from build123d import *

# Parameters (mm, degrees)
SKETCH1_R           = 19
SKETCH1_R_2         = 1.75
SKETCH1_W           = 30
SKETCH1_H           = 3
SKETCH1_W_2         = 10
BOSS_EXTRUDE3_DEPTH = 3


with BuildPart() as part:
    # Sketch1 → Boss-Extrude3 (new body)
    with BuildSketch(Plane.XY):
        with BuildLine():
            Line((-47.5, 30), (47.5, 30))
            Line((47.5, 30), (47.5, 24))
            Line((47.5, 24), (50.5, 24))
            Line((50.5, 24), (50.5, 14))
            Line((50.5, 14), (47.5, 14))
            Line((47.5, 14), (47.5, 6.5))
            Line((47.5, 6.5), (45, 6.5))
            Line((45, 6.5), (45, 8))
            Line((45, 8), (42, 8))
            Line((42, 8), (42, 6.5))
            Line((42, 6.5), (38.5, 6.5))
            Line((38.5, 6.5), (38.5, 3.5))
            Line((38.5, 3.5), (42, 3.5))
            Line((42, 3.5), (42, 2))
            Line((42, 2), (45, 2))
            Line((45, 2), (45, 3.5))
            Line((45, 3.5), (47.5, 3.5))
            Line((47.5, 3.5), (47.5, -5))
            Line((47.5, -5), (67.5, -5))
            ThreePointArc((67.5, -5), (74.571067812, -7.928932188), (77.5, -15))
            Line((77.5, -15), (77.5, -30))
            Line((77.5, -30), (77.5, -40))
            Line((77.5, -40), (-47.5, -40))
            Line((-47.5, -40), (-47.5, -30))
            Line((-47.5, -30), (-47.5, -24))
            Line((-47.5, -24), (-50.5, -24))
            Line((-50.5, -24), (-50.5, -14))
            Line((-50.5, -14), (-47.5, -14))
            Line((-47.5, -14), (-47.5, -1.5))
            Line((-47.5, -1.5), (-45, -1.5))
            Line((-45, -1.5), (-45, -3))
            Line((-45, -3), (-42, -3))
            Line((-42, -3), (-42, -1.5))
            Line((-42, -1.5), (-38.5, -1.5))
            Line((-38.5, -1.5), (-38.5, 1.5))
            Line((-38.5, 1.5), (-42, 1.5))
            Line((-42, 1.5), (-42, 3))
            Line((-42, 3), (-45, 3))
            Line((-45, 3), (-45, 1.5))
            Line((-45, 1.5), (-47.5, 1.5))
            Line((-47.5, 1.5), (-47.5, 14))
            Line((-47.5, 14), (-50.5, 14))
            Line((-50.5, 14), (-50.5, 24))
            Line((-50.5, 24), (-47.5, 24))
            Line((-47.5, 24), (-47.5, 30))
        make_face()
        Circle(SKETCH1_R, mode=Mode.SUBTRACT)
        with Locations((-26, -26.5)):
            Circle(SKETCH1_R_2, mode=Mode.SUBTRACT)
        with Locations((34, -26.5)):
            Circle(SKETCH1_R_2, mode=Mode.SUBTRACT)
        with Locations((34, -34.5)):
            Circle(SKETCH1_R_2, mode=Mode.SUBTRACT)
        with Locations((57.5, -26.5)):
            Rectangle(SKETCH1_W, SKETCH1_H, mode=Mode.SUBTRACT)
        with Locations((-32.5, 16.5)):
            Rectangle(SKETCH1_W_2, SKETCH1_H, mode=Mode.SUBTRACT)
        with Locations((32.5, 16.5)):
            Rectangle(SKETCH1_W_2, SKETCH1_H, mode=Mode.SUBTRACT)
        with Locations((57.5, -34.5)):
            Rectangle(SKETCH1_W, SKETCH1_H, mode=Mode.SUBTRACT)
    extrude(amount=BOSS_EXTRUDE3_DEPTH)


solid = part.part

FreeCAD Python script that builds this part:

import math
import FreeCAD as App
import Part
import Sketcher


def add_polygon(sketch, points):
    """Adds a closed chain of lines whose ends are joined by coincident constraints."""
    first, n = sketch.GeometryCount, len(points)
    for a, b in zip(points, points[1:] + points[:1]):
        sketch.addGeometry(Part.LineSegment(App.Vector(*a, 0), App.Vector(*b, 0)), False)
    for i in range(n):
        sketch.addConstraint(Sketcher.Constraint("Coincident", first + i, 2, first + (i + 1) % n, 1))

doc = App.newDocument("Part")
body = doc.addObject("PartDesign::Body", "Body")

sketch1 = doc.addObject("Sketcher::SketchObject", "Sketch")
body.addObject(sketch1)
sketch1.AttachmentSupport = (doc.XY_Plane, [""])
sketch1.MapMode = "FlatFace"
sketch1.addGeometry(Part.LineSegment(App.Vector(47.5, 30, 0), App.Vector(-47.5, 30, 0)), False)
sketch1.addGeometry(Part.LineSegment(App.Vector(-47.5, 30, 0), App.Vector(-47.5, 24, 0)), False)
sketch1.addGeometry(Part.LineSegment(App.Vector(-47.5, 24, 0), App.Vector(-50.5, 24, 0)), False)
sketch1.addGeometry(Part.LineSegment(App.Vector(-50.5, 24, 0), App.Vector(-50.5, 14, 0)), False)
sketch1.addGeometry(Part.LineSegment(App.Vector(-50.5, 14, 0), App.Vector(-47.5, 14, 0)), False)
sketch1.addGeometry(Part.LineSegment(App.Vector(-47.5, 14, 0), App.Vector(-47.5, 1.5, 0)), False)
sketch1.addGeometry(Part.LineSegment(App.Vector(-47.5, 1.5, 0), App.Vector(-45, 1.5, 0)), False)
sketch1.addGeometry(Part.LineSegment(App.Vector(-45, 1.5, 0), App.Vector(-45, 3, 0)), False)
sketch1.addGeometry(Part.LineSegment(App.Vector(-45, 3, 0), App.Vector(-42, 3, 0)), False)
sketch1.addGeometry(Part.LineSegment(App.Vector(-42, 3, 0), App.Vector(-42, 1.5, 0)), False)
sketch1.addGeometry(Part.LineSegment(App.Vector(-42, 1.5, 0), App.Vector(-38.5, 1.5, 0)), False)
sketch1.addGeometry(Part.LineSegment(App.Vector(-38.5, 1.5, 0), App.Vector(-38.5, -1.5, 0)), False)
sketch1.addGeometry(Part.LineSegment(App.Vector(-38.5, -1.5, 0), App.Vector(-42, -1.5, 0)), False)
sketch1.addGeometry(Part.LineSegment(App.Vector(-42, -1.5, 0), App.Vector(-42, -3, 0)), False)
sketch1.addGeometry(Part.LineSegment(App.Vector(-42, -3, 0), App.Vector(-45, -3, 0)), False)
sketch1.addGeometry(Part.LineSegment(App.Vector(-45, -3, 0), App.Vector(-45, -1.5, 0)), False)
sketch1.addGeometry(Part.LineSegment(App.Vector(-45, -1.5, 0), App.Vector(-47.5, -1.5, 0)), False)
sketch1.addGeometry(Part.LineSegment(App.Vector(-47.5, -1.5, 0), App.Vector(-47.5, -14, 0)), False)
sketch1.addGeometry(Part.LineSegment(App.Vector(-47.5, -14, 0), App.Vector(-50.5, -14, 0)), False)
sketch1.addGeometry(Part.LineSegment(App.Vector(-50.5, -14, 0), App.Vector(-50.5, -24, 0)), False)
sketch1.addGeometry(Part.LineSegment(App.Vector(-50.5, -24, 0), App.Vector(-47.5, -24, 0)), False)
sketch1.addGeometry(Part.LineSegment(App.Vector(-47.5, -24, 0), App.Vector(-47.5, -40, 0)), False)
sketch1.addGeometry(Part.LineSegment(App.Vector(-47.5, -40, 0), App.Vector(77.5, -40, 0)), False)
sketch1.addGeometry(Part.LineSegment(App.Vector(77.5, -40, 0), App.Vector(77.5, -15, 0)), False)
sketch1.addGeometry(Part.ArcOfCircle(Part.Circle(App.Vector(67.5, -15, 0), App.Vector(0, 0, 1), 10), math.radians(0), math.radians(90)), False)
sketch1.addGeometry(Part.LineSegment(App.Vector(67.5, -5, 0), App.Vector(47.5, -5, 0)), False)
sketch1.addGeometry(Part.LineSegment(App.Vector(47.5, -5, 0), App.Vector(47.5, 3.5, 0)), False)
sketch1.addGeometry(Part.LineSegment(App.Vector(47.5, 3.5, 0), App.Vector(45, 3.5, 0)), False)
sketch1.addGeometry(Part.LineSegment(App.Vector(45, 3.5, 0), App.Vector(45, 2, 0)), False)
sketch1.addGeometry(Part.LineSegment(App.Vector(45, 2, 0), App.Vector(42, 2, 0)), False)
sketch1.addGeometry(Part.LineSegment(App.Vector(42, 2, 0), App.Vector(42, 3.5, 0)), False)
sketch1.addGeometry(Part.LineSegment(App.Vector(42, 3.5, 0), App.Vector(38.5, 3.5, 0)), False)
sketch1.addGeometry(Part.LineSegment(App.Vector(38.5, 3.5, 0), App.Vector(38.5, 6.5, 0)), False)
sketch1.addGeometry(Part.LineSegment(App.Vector(38.5, 6.5, 0), App.Vector(42, 6.5, 0)), False)
sketch1.addGeometry(Part.LineSegment(App.Vector(42, 6.5, 0), App.Vector(42, 8, 0)), False)
sketch1.addGeometry(Part.LineSegment(App.Vector(42, 8, 0), App.Vector(45, 8, 0)), False)
sketch1.addGeometry(Part.LineSegment(App.Vector(45, 8, 0), App.Vector(45, 6.5, 0)), False)
sketch1.addGeometry(Part.LineSegment(App.Vector(45, 6.5, 0), App.Vector(47.5, 6.5, 0)), False)
sketch1.addGeometry(Part.LineSegment(App.Vector(47.5, 6.5, 0), App.Vector(47.5, 14, 0)), False)
sketch1.addGeometry(Part.LineSegment(App.Vector(47.5, 14, 0), App.Vector(50.5, 14, 0)), False)
sketch1.addGeometry(Part.LineSegment(App.Vector(50.5, 14, 0), App.Vector(50.5, 24, 0)), False)
sketch1.addGeometry(Part.LineSegment(App.Vector(50.5, 24, 0), App.Vector(47.5, 24, 0)), False)
sketch1.addGeometry(Part.LineSegment(App.Vector(47.5, 24, 0), App.Vector(47.5, 30, 0)), False)
add_polygon(sketch1, [(42.5, -36), (42.5, -33), (72.5, -33), (72.5, -36)])
add_polygon(sketch1, [(42.5, -28), (42.5, -25), (72.5, -25), (72.5, -28)])
sketch1.addGeometry(Part.Circle(App.Vector(34, -34.5, 0), App.Vector(0, 0, 1), 1.8), False)
sketch1.addGeometry(Part.Circle(App.Vector(34, -26.5, 0), App.Vector(0, 0, 1), 1.8), False)
sketch1.addGeometry(Part.Circle(App.Vector(-26, -26.5, 0), App.Vector(0, 0, 1), 1.8), False)
add_polygon(sketch1, [(27.5, 15), (27.5, 18), (37.5, 18), (37.5, 15)])
sketch1.addGeometry(Part.Circle(App.Vector(0, 0, 0), App.Vector(0, 0, 1), 19), False)
add_polygon(sketch1, [(-37.5, 15), (-37.5, 18), (-27.5, 18), (-27.5, 15)])
sketch1.addConstraint(Sketcher.Constraint("Coincident", 0, 2, 1, 1))
sketch1.addConstraint(Sketcher.Constraint("Coincident", 1, 2, 2, 1))
sketch1.addConstraint(Sketcher.Constraint("Coincident", 2, 2, 3, 1))
sketch1.addConstraint(Sketcher.Constraint("Coincident", 3, 2, 4, 1))
sketch1.addConstraint(Sketcher.Constraint("Coincident", 4, 2, 5, 1))
sketch1.addConstraint(Sketcher.Constraint("Coincident", 5, 2, 6, 1))
sketch1.addConstraint(Sketcher.Constraint("Coincident", 6, 2, 7, 1))
sketch1.addConstraint(Sketcher.Constraint("Coincident", 7, 2, 8, 1))
sketch1.addConstraint(Sketcher.Constraint("Coincident", 8, 2, 9, 1))
sketch1.addConstraint(Sketcher.Constraint("Coincident", 9, 2, 10, 1))
sketch1.addConstraint(Sketcher.Constraint("Coincident", 10, 2, 11, 1))
sketch1.addConstraint(Sketcher.Constraint("Coincident", 11, 2, 12, 1))
sketch1.addConstraint(Sketcher.Constraint("Coincident", 12, 2, 13, 1))
sketch1.addConstraint(Sketcher.Constraint("Coincident", 13, 2, 14, 1))
sketch1.addConstraint(Sketcher.Constraint("Coincident", 14, 2, 15, 1))
sketch1.addConstraint(Sketcher.Constraint("Coincident", 15, 2, 16, 1))
sketch1.addConstraint(Sketcher.Constraint("Coincident", 16, 2, 17, 1))
sketch1.addConstraint(Sketcher.Constraint("Coincident", 17, 2, 18, 1))
sketch1.addConstraint(Sketcher.Constraint("Coincident", 18, 2, 19, 1))
sketch1.addConstraint(Sketcher.Constraint("Coincident", 19, 2, 20, 1))
sketch1.addConstraint(Sketcher.Constraint("Coincident", 20, 2, 21, 1))
sketch1.addConstraint(Sketcher.Constraint("Coincident", 21, 2, 22, 1))
sketch1.addConstraint(Sketcher.Constraint("Coincident", 22, 2, 23, 1))
sketch1.addConstraint(Sketcher.Constraint("Tangent", 23, 2, 24, 1))
sketch1.addConstraint(Sketcher.Constraint("Tangent", 24, 2, 25, 1))
sketch1.addConstraint(Sketcher.Constraint("Coincident", 25, 2, 26, 1))
sketch1.addConstraint(Sketcher.Constraint("Coincident", 26, 2, 27, 1))
sketch1.addConstraint(Sketcher.Constraint("Coincident", 27, 2, 28, 1))
sketch1.addConstraint(Sketcher.Constraint("Coincident", 28, 2, 29, 1))
sketch1.addConstraint(Sketcher.Constraint("Coincident", 29, 2, 30, 1))
sketch1.addConstraint(Sketcher.Constraint("Coincident", 30, 2, 31, 1))
sketch1.addConstraint(Sketcher.Constraint("Coincident", 31, 2, 32, 1))
sketch1.addConstraint(Sketcher.Constraint("Coincident", 32, 2, 33, 1))
sketch1.addConstraint(Sketcher.Constraint("Coincident", 33, 2, 34, 1))
sketch1.addConstraint(Sketcher.Constraint("Coincident", 34, 2, 35, 1))
sketch1.addConstraint(Sketcher.Constraint("Coincident", 35, 2, 36, 1))
sketch1.addConstraint(Sketcher.Constraint("Coincident", 36, 2, 37, 1))
sketch1.addConstraint(Sketcher.Constraint("Coincident", 37, 2, 38, 1))
sketch1.addConstraint(Sketcher.Constraint("Coincident", 38, 2, 39, 1))
sketch1.addConstraint(Sketcher.Constraint("Coincident", 39, 2, 40, 1))
sketch1.addConstraint(Sketcher.Constraint("Coincident", 40, 2, 41, 1))
sketch1.addConstraint(Sketcher.Constraint("Coincident", 41, 2, 42, 1))
sketch1.addConstraint(Sketcher.Constraint("Coincident", 42, 2, 0, 1))
sketch1.addConstraint(Sketcher.Constraint("Horizontal", 0))
sketch1.addConstraint(Sketcher.Constraint("Vertical", 1))
sketch1.addConstraint(Sketcher.Constraint("Horizontal", 2))
sketch1.addConstraint(Sketcher.Constraint("Vertical", 3))
sketch1.addConstraint(Sketcher.Constraint("Horizontal", 4))
sketch1.addConstraint(Sketcher.Constraint("Vertical", 5))
sketch1.addConstraint(Sketcher.Constraint("Horizontal", 6))
sketch1.addConstraint(Sketcher.Constraint("Vertical", 7))
sketch1.addConstraint(Sketcher.Constraint("Horizontal", 8))
sketch1.addConstraint(Sketcher.Constraint("Vertical", 9))
sketch1.addConstraint(Sketcher.Constraint("Horizontal", 10))
sketch1.addConstraint(Sketcher.Constraint("Vertical", 11))
sketch1.addConstraint(Sketcher.Constraint("Horizontal", 12))
sketch1.addConstraint(Sketcher.Constraint("Vertical", 13))
sketch1.addConstraint(Sketcher.Constraint("Horizontal", 14))
sketch1.addConstraint(Sketcher.Constraint("Vertical", 15))
sketch1.addConstraint(Sketcher.Constraint("Horizontal", 16))
sketch1.addConstraint(Sketcher.Constraint("Vertical", 17))
sketch1.addConstraint(Sketcher.Constraint("Horizontal", 18))
sketch1.addConstraint(Sketcher.Constraint("Vertical", 19))
sketch1.addConstraint(Sketcher.Constraint("Horizontal", 20))
sketch1.addConstraint(Sketcher.Constraint("Vertical", 21))
sketch1.addConstraint(Sketcher.Constraint("Horizontal", 22))
sketch1.addConstraint(Sketcher.Constraint("Vertical", 23))
sketch1.addConstraint(Sketcher.Constraint("Horizontal", 25))
sketch1.addConstraint(Sketcher.Constraint("Vertical", 26))
sketch1.addConstraint(Sketcher.Constraint("Horizontal", 27))
sketch1.addConstraint(Sketcher.Constraint("Vertical", 28))
sketch1.addConstraint(Sketcher.Constraint("Horizontal", 29))
sketch1.addConstraint(Sketcher.Constraint("Vertical", 30))
sketch1.addConstraint(Sketcher.Constraint("Horizontal", 31))
sketch1.addConstraint(Sketcher.Constraint("Vertical", 32))
sketch1.addConstraint(Sketcher.Constraint("Horizontal", 33))
sketch1.addConstraint(Sketcher.Constraint("Vertical", 34))
sketch1.addConstraint(Sketcher.Constraint("Horizontal", 35))
sketch1.addConstraint(Sketcher.Constraint("Vertical", 36))
sketch1.addConstraint(Sketcher.Constraint("Horizontal", 37))
sketch1.addConstraint(Sketcher.Constraint("Vertical", 38))
sketch1.addConstraint(Sketcher.Constraint("Horizontal", 39))
sketch1.addConstraint(Sketcher.Constraint("Vertical", 40))
sketch1.addConstraint(Sketcher.Constraint("Horizontal", 41))
sketch1.addConstraint(Sketcher.Constraint("Vertical", 42))
sketch1.addConstraint(Sketcher.Constraint("Vertical", 43))
sketch1.addConstraint(Sketcher.Constraint("Horizontal", 44))
sketch1.addConstraint(Sketcher.Constraint("Vertical", 45))
sketch1.addConstraint(Sketcher.Constraint("Horizontal", 46))
sketch1.addConstraint(Sketcher.Constraint("Vertical", 47))
sketch1.addConstraint(Sketcher.Constraint("Horizontal", 48))
sketch1.addConstraint(Sketcher.Constraint("Vertical", 49))
sketch1.addConstraint(Sketcher.Constraint("Horizontal", 50))
sketch1.addConstraint(Sketcher.Constraint("Vertical", 54))
sketch1.addConstraint(Sketcher.Constraint("Horizontal", 55))
sketch1.addConstraint(Sketcher.Constraint("Vertical", 56))
sketch1.addConstraint(Sketcher.Constraint("Horizontal", 57))
sketch1.addConstraint(Sketcher.Constraint("Vertical", 59))
sketch1.addConstraint(Sketcher.Constraint("Horizontal", 60))
sketch1.addConstraint(Sketcher.Constraint("Vertical", 61))
sketch1.addConstraint(Sketcher.Constraint("Horizontal", 62))
sketch1.addConstraint(Sketcher.Constraint("Coincident", 58, 3, -1, 1))
sketch1.addConstraint(Sketcher.Constraint("Equal", 51, 52))
sketch1.addConstraint(Sketcher.Constraint("Equal", 52, 53))
sketch1.addConstraint(Sketcher.Constraint("Symmetric", 17, 2, 38, 2, -1, 1))
sketch1.addConstraint(Sketcher.Constraint("Symmetric", 19, 2, 40, 2, -1, 1))
sketch1.addConstraint(Sketcher.Constraint("Symmetric", 4, 2, 38, 2, -2))
sketch1.addConstraint(Sketcher.Constraint("Symmetric", 2, 2, 40, 2, -2))
sketch1.addConstraint(Sketcher.Constraint("Symmetric", 55, 2, 59, 2, -2))
sketch1.addConstraint(Sketcher.Constraint("Symmetric", 57, 2, 61, 2, -2))
sketch1.addConstraint(Sketcher.Constraint("Symmetric", 9, 2, 12, 2, -1))
sketch1.addConstraint(Sketcher.Constraint("Symmetric", 7, 2, 14, 2, -1))
sketch1.addConstraint(Sketcher.Constraint("Horizontal", 52, 3, 53, 3))
sketch1.addConstraint(Sketcher.Constraint("Horizontal", 6, 2, 9, 2))
sketch1.addConstraint(Sketcher.Constraint("Horizontal", 12, 2, 15, 2))
sketch1.addConstraint(Sketcher.Constraint("Horizontal", 27, 2, 30, 2))
sketch1.addConstraint(Sketcher.Constraint("Horizontal", 33, 2, 36, 2))
sketch1.addConstraint(Sketcher.Constraint("Vertical", 51, 3, 52, 3))
sketch1.addConstraint(Sketcher.Constraint("Vertical", 1, 2, 4, 2))
sketch1.addConstraint(Sketcher.Constraint("Vertical", 17, 2, 20, 2))
sketch1.addConstraint(Sketcher.Constraint("Vertical", 30, 2, 33, 2))
sketch1.addConstraint(Sketcher.Constraint("Vertical", 28, 2, 35, 2))
sketch1.addConstraint(Sketcher.Constraint("Vertical", 26, 2, 37, 2))
sketch1.addConstraint(Sketcher.Constraint("Vertical", 38, 2, 41, 2))
sketch1.addConstraint(Sketcher.Constraint("Vertical", 46, 2, 47, 2))
sketch1.addConstraint(Sketcher.Constraint("Vertical", 45, 2, 48, 2))
sketch1.addConstraint(Sketcher.Constraint("Equal", 4, 8))
sketch1.addConstraint(Sketcher.Constraint("Equal", 16, 27))
sketch1.addConstraint(Sketcher.Constraint("Equal", 20, 29))
sketch1.addConstraint(Sketcher.Constraint("Equal", 12, 31))
sketch1.addConstraint(Sketcher.Constraint("Equal", 62, 3))
sketch1.addConstraint(Sketcher.Constraint("Equal", 41, 11))
sketch1.addConstraint(Sketcher.Constraint("Equal", 15, 28))
sketch1.addConstraint(Sketcher.Constraint("Equal", 11, 32))
sketch1.addConstraint(Sketcher.Constraint("Equal", 30, 34))
sketch1.addConstraint(Sketcher.Constraint("Equal", 32, 43))
sketch1.addConstraint(Sketcher.Constraint("Equal", 45, 47))
sketch1.addConstraint(Sketcher.Constraint("Equal", 49, 54))
sketch1.addConstraint(Sketcher.Constraint("Diameter", 58, 38.0))
sketch1.addConstraint(Sketcher.Constraint("Radius", 24, 10.0))
sketch1.addConstraint(Sketcher.Constraint("Diameter", 51, 3.5))
sketch1.addConstraint(Sketcher.Constraint("DistanceX", 0, 2, 0, 1, 95.0))
sketch1.addConstraint(Sketcher.Constraint("DistanceX", 2, 2, 2, 1, 3.0))
sketch1.addConstraint(Sketcher.Constraint("DistanceX", 22, 1, 22, 2, 125.0))
sketch1.addConstraint(Sketcher.Constraint("DistanceX", 44, 1, 44, 2, 30.0))
sketch1.addConstraint(Sketcher.Constraint("DistanceX", 55, 1, 55, 2, 10.0))
sketch1.addConstraint(Sketcher.Constraint("DistanceY", 1, 2, 1, 1, 6.0))
sketch1.addConstraint(Sketcher.Constraint("DistanceY", 21, 2, 21, 1, 16.0))
sketch1.addConstraint(Sketcher.Constraint("DistanceY", 23, 1, 23, 2, 25.0))
sketch1.addConstraint(Sketcher.Constraint("DistanceX", 6, 1, 6, 2, 2.5))
sketch1.addConstraint(Sketcher.Constraint("DistanceX", 10, 1, 10, 2, 3.5))
sketch1.addConstraint(Sketcher.Constraint("DistanceY", 5, 2, 5, 1, 12.5))
sketch1.addConstraint(Sketcher.Constraint("DistanceY", 7, 1, 7, 2, 1.5))
sketch1.addConstraint(Sketcher.Constraint("DistanceY", 26, 1, 26, 2, 8.5))
sketch1.addConstraint(Sketcher.Constraint("DistanceX", -1, 1, 51, 3, 34.0))
sketch1.addConstraint(Sketcher.Constraint("DistanceX", 53, 3, -1, 1, 26.0))
sketch1.addConstraint(Sketcher.Constraint("DistanceY", 43, 2, -1, 1, 33.0))
sketch1.addConstraint(Sketcher.Constraint("DistanceY", 47, 2, -1, 1, 25.0))
sketch1.addConstraint(Sketcher.Constraint("DistanceY", -1, 1, 54, 2, 18.0))
sketch1.addConstraint(Sketcher.Constraint("DistanceY", 51, 3, -1, 1, 34.5))
sketch1.addConstraint(Sketcher.Constraint("DistanceY", 52, 3, -1, 1, 26.5))
sketch1.addConstraint(Sketcher.Constraint("DistanceX", -1, 1, 43, 2, 42.5))
sketch1.addConstraint(Sketcher.Constraint("DistanceX", -1, 1, 54, 2, 27.5))
pad1 = doc.addObject("PartDesign::Pad", "Pad")
body.addObject(pad1)
pad1.Profile = sketch1
pad1.Length = 3

doc.recompute()
